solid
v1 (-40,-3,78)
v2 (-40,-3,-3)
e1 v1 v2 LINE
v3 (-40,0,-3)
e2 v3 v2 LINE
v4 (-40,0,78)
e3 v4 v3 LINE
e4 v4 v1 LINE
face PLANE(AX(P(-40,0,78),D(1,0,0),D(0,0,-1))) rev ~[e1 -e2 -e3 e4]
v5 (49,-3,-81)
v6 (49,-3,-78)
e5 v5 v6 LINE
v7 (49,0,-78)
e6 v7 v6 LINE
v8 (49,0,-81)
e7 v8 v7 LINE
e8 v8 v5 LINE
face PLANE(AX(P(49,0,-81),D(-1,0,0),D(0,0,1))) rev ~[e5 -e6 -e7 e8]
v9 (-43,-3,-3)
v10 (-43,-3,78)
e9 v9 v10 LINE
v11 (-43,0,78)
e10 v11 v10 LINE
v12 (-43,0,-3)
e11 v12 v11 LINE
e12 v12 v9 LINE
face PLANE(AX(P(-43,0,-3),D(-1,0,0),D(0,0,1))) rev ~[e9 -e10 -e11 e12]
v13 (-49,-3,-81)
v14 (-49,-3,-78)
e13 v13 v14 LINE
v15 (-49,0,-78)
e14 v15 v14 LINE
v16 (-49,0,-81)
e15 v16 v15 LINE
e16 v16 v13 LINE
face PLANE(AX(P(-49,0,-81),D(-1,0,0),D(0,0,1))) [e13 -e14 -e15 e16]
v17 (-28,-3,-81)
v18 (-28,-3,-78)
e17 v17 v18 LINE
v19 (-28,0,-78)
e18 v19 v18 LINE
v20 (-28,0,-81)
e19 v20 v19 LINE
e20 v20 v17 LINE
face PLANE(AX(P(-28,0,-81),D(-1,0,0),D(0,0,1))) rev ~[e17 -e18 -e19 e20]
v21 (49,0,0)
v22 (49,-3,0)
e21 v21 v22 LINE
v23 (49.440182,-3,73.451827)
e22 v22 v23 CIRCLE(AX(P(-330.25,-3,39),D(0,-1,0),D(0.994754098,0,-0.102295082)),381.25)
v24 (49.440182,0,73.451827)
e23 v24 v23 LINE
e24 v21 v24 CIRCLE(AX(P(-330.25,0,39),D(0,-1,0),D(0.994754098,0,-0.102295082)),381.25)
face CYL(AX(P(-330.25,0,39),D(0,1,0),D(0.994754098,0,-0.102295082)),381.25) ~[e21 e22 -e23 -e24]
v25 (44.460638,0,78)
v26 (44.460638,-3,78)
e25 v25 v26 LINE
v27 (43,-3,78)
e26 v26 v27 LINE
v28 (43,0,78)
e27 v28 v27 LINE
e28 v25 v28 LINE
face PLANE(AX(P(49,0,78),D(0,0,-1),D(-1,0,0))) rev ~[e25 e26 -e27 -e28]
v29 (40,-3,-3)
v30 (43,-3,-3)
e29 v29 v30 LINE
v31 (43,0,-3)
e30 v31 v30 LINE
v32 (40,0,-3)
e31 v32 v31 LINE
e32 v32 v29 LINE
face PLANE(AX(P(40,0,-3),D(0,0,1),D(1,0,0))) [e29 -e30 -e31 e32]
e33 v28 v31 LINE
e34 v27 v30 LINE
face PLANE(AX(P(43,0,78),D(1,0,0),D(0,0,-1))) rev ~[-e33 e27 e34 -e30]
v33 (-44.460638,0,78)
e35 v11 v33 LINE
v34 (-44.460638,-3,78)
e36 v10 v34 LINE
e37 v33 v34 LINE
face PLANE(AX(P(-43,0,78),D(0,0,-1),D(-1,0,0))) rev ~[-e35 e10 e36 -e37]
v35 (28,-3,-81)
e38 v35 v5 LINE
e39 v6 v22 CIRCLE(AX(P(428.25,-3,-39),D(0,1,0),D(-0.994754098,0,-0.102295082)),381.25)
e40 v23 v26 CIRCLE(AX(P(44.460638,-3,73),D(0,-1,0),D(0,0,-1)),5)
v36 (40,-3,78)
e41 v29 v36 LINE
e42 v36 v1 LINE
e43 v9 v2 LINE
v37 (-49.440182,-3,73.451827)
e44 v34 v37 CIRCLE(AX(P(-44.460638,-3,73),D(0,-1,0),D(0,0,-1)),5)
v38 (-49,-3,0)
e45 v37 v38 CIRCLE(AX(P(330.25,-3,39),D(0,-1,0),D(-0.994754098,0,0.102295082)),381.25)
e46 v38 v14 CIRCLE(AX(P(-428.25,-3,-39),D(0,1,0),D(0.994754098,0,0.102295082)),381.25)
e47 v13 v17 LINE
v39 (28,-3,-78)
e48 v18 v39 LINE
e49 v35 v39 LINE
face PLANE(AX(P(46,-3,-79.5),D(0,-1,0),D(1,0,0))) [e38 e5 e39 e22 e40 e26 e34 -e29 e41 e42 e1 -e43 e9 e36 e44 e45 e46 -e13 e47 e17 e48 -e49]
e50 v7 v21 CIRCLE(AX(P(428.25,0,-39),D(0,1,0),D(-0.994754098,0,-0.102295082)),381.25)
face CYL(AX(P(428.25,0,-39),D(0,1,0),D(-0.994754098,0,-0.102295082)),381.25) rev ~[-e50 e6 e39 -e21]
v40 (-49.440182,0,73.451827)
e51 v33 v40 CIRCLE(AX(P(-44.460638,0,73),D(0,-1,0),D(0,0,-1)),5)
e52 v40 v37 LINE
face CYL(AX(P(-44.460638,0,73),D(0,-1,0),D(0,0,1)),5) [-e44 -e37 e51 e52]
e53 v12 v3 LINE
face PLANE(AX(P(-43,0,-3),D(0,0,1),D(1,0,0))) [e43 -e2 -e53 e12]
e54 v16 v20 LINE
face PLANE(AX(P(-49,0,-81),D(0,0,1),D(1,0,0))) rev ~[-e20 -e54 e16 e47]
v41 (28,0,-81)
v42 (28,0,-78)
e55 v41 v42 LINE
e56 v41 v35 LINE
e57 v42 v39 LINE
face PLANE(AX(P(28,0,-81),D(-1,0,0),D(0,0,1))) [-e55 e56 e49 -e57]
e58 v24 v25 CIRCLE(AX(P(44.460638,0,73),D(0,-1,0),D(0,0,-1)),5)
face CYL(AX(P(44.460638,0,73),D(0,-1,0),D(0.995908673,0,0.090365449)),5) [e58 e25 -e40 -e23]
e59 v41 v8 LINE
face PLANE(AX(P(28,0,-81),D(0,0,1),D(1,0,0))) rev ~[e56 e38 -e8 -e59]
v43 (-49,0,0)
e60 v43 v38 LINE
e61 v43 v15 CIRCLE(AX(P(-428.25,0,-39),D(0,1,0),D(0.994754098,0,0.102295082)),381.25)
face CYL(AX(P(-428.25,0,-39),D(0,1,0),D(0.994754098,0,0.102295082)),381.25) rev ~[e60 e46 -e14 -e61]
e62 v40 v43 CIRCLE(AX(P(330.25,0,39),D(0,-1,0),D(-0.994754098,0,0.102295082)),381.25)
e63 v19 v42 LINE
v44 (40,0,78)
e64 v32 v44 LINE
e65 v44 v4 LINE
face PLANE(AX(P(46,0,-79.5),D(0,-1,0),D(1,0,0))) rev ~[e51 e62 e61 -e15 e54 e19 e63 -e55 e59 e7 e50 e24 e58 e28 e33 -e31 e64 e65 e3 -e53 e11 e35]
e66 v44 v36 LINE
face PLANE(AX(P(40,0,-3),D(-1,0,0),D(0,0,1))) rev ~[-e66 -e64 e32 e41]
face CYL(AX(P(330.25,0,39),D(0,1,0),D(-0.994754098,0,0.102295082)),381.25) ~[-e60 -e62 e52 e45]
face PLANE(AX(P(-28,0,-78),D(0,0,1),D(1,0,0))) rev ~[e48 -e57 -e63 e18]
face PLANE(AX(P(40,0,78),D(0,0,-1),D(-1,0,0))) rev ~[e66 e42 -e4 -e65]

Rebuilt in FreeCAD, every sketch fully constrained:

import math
import FreeCAD as App
import Part
import Sketcher
from FreeCAD import Vector
Q = App.Units.Quantity


def edges_at(feature, points):
    """Names of the edges that pass closest to the given points."""
    edges = feature.Shape.Edges
    near = lambda p: min(range(len(edges)), key=lambda i: edges[i].distToShape(Part.Vertex(*p))[0])
    return sorted({f"Edge{near(p) + 1}" for p in points})

doc = App.newDocument("Part")
body = doc.addObject("PartDesign::Body", "Body")

sketch1 = body.newObject("Sketcher::SketchObject", "Sketch")
sketch1.AttachmentSupport = (doc.getObject("XZ_Plane"), [""])
sketch1.MapMode = "FlatFace"
sketch1.addGeometry([
    Part.LineSegment(Vector(49, -81, 0), Vector(49, -78, 0)),
    Part.ArcOfCircle(Part.Circle(Vector(428.25, -39, 0), Vector(0, 0, 1), 381.25), math.radians(174.128653), math.radians(185.871347)),
    Part.ArcOfCircle(Part.Circle(Vector(-330.25, 39, 0), Vector(0, 0, 1), 381.25), math.radians(-5.871347), math.radians(5.871347)),
    Part.LineSegment(Vector(49, 78, 0), Vector(43, 78, 0)),
    Part.LineSegment(Vector(43, 78, 0), Vector(43, -3, 0)),
    Part.LineSegment(Vector(43, -3, 0), Vector(40, -3, 0)),
    Part.LineSegment(Vector(40, -3, 0), Vector(40, 78, 0)),
    Part.LineSegment(Vector(40, 78, 0), Vector(-40, 78, 0)),
    Part.LineSegment(Vector(-40, 78, 0), Vector(-40, -3, 0)),
    Part.LineSegment(Vector(-40, -3, 0), Vector(-43, -3, 0)),
    Part.LineSegment(Vector(-43, -3, 0), Vector(-43, 78, 0)),
    Part.LineSegment(Vector(-43, 78, 0), Vector(-49, 78, 0)),
    Part.ArcOfCircle(Part.Circle(Vector(330.25, 39, 0), Vector(0, 0, 1), 381.25), math.radians(174.128653), math.radians(185.871347)),
    Part.ArcOfCircle(Part.Circle(Vector(-428.25, -39, 0), Vector(0, 0, 1), 381.25), math.radians(-5.871347), math.radians(5.871347)),
    Part.LineSegment(Vector(-49, -78, 0), Vector(-49, -81, 0)),
    Part.LineSegment(Vector(-49, -81, 0), Vector(-28, -81, 0)),
    Part.LineSegment(Vector(-28, -81, 0), Vector(-28, -78, 0)),
    Part.LineSegment(Vector(-28, -78, 0), Vector(28, -78, 0)),
    Part.LineSegment(Vector(28, -78, 0), Vector(28, -81, 0)),
    Part.LineSegment(Vector(28, -81, 0), Vector(49, -81, 0)),
], False)
sketch1.addConstraint([
    Sketcher.Constraint("Coincident", 0, 2, 1, 2),
    Sketcher.Constraint("Tangent", 1, 1, 2, 1),
    Sketcher.Constraint("Coincident", 2, 2, 3, 1),
    Sketcher.Constraint("Coincident", 3, 2, 4, 1),
    Sketcher.Constraint("Coincident", 4, 2, 5, 1),
    Sketcher.Constraint("Coincident", 5, 2, 6, 1),
    Sketcher.Constraint("Coincident", 6, 2, 7, 1),
    Sketcher.Constraint("Coincident", 7, 2, 8, 1),
    Sketcher.Constraint("Coincident", 8, 2, 9, 1),
    Sketcher.Constraint("Coincident", 9, 2, 10, 1),
    Sketcher.Constraint("Coincident", 10, 2, 11, 1),
    Sketcher.Constraint("Coincident", 11, 2, 12, 1),
    Sketcher.Constraint("Tangent", 12, 2, 13, 2),
    Sketcher.Constraint("Coincident", 13, 1, 14, 1),
    Sketcher.Constraint("Coincident", 14, 2, 15, 1),
    Sketcher.Constraint("Coincident", 15, 2, 16, 1),
    Sketcher.Constraint("Coincident", 16, 2, 17, 1),
    Sketcher.Constraint("Coincident", 17, 2, 18, 1),
    Sketcher.Constraint("Coincident", 18, 2, 19, 1),
    Sketcher.Constraint("Coincident", 19, 2, 0, 1),
    Sketcher.Constraint("Vertical", 0),
    Sketcher.Constraint("Horizontal", 3),
    Sketcher.Constraint("Vertical", 4),
    Sketcher.Constraint("Horizontal", 5),
    Sketcher.Constraint("Vertical", 6),
    Sketcher.Constraint("Horizontal", 7),
    Sketcher.Constraint("Vertical", 8),
    Sketcher.Constraint("Horizontal", 9),
    Sketcher.Constraint("Vertical", 10),
    Sketcher.Constraint("Horizontal", 11),
    Sketcher.Constraint("Vertical", 14),
    Sketcher.Constraint("Horizontal", 15),
    Sketcher.Constraint("Vertical", 16),
    Sketcher.Constraint("Horizontal", 17),
    Sketcher.Constraint("Vertical", 18),
    Sketcher.Constraint("Horizontal", 19),
    Sketcher.Constraint("Equal", 1, 2),
    Sketcher.Constraint("Equal", 2, 12),
    Sketcher.Constraint("Equal", 12, 13),
    Sketcher.Constraint("Symmetric", 0, 2, 11, 2, -1, 1),
    Sketcher.Constraint("Symmetric", 2, 2, 13, 1, -1, 1),
    Sketcher.Constraint("Symmetric", 2, 3, 12, 3, -2),
    Sketcher.Constraint("Symmetric", 5, 2, 8, 2, -2),
    Sketcher.Constraint("Symmetric", 3, 2, 10, 2, -2),
    Sketcher.Constraint("Symmetric", 15, 2, 18, 2, -2),
    Sketcher.Constraint("Horizontal", 3, 2, 6, 2),
    Sketcher.Constraint("Equal", 9, 0),
    Sketcher.Constraint("Equal", 14, 16),
    Sketcher.Constraint("DistanceX", 3, 2, 3, 1, Q("6 mm")),
    Sketcher.Constraint("DistanceX", 5, 2, 5, 1, Q("3 mm")),
    Sketcher.Constraint("DistanceX", 7, 2, 7, 1, Q("80 mm")),
    Sketcher.Constraint("DistanceX", 15, 1, 15, 2, Q("21 mm")),
    Sketcher.Constraint("DistanceY", 4, 2, 4, 1, Q("81 mm")),
    Sketcher.Constraint("Radius", 1, Q("381.25 mm")),
    Sketcher.Constraint("DistanceY", 1, 3, -1, 1, Q("39 mm")),
    Sketcher.Constraint("DistanceY", -1, 1, 2, 3, Q("39 mm")),
])
pad1 = body.newObject("PartDesign::Pad", "Pad")
pad1.Profile = sketch1
pad1.Length = 3
doc.recompute()

fillet = body.newObject("PartDesign::Fillet", "Fillet")
fillet.Base = (pad1, edges_at(pad1, [(49, -1.5, 78), (-49, -1.5, 78)]))
fillet.Radius = 5

doc.recompute()
